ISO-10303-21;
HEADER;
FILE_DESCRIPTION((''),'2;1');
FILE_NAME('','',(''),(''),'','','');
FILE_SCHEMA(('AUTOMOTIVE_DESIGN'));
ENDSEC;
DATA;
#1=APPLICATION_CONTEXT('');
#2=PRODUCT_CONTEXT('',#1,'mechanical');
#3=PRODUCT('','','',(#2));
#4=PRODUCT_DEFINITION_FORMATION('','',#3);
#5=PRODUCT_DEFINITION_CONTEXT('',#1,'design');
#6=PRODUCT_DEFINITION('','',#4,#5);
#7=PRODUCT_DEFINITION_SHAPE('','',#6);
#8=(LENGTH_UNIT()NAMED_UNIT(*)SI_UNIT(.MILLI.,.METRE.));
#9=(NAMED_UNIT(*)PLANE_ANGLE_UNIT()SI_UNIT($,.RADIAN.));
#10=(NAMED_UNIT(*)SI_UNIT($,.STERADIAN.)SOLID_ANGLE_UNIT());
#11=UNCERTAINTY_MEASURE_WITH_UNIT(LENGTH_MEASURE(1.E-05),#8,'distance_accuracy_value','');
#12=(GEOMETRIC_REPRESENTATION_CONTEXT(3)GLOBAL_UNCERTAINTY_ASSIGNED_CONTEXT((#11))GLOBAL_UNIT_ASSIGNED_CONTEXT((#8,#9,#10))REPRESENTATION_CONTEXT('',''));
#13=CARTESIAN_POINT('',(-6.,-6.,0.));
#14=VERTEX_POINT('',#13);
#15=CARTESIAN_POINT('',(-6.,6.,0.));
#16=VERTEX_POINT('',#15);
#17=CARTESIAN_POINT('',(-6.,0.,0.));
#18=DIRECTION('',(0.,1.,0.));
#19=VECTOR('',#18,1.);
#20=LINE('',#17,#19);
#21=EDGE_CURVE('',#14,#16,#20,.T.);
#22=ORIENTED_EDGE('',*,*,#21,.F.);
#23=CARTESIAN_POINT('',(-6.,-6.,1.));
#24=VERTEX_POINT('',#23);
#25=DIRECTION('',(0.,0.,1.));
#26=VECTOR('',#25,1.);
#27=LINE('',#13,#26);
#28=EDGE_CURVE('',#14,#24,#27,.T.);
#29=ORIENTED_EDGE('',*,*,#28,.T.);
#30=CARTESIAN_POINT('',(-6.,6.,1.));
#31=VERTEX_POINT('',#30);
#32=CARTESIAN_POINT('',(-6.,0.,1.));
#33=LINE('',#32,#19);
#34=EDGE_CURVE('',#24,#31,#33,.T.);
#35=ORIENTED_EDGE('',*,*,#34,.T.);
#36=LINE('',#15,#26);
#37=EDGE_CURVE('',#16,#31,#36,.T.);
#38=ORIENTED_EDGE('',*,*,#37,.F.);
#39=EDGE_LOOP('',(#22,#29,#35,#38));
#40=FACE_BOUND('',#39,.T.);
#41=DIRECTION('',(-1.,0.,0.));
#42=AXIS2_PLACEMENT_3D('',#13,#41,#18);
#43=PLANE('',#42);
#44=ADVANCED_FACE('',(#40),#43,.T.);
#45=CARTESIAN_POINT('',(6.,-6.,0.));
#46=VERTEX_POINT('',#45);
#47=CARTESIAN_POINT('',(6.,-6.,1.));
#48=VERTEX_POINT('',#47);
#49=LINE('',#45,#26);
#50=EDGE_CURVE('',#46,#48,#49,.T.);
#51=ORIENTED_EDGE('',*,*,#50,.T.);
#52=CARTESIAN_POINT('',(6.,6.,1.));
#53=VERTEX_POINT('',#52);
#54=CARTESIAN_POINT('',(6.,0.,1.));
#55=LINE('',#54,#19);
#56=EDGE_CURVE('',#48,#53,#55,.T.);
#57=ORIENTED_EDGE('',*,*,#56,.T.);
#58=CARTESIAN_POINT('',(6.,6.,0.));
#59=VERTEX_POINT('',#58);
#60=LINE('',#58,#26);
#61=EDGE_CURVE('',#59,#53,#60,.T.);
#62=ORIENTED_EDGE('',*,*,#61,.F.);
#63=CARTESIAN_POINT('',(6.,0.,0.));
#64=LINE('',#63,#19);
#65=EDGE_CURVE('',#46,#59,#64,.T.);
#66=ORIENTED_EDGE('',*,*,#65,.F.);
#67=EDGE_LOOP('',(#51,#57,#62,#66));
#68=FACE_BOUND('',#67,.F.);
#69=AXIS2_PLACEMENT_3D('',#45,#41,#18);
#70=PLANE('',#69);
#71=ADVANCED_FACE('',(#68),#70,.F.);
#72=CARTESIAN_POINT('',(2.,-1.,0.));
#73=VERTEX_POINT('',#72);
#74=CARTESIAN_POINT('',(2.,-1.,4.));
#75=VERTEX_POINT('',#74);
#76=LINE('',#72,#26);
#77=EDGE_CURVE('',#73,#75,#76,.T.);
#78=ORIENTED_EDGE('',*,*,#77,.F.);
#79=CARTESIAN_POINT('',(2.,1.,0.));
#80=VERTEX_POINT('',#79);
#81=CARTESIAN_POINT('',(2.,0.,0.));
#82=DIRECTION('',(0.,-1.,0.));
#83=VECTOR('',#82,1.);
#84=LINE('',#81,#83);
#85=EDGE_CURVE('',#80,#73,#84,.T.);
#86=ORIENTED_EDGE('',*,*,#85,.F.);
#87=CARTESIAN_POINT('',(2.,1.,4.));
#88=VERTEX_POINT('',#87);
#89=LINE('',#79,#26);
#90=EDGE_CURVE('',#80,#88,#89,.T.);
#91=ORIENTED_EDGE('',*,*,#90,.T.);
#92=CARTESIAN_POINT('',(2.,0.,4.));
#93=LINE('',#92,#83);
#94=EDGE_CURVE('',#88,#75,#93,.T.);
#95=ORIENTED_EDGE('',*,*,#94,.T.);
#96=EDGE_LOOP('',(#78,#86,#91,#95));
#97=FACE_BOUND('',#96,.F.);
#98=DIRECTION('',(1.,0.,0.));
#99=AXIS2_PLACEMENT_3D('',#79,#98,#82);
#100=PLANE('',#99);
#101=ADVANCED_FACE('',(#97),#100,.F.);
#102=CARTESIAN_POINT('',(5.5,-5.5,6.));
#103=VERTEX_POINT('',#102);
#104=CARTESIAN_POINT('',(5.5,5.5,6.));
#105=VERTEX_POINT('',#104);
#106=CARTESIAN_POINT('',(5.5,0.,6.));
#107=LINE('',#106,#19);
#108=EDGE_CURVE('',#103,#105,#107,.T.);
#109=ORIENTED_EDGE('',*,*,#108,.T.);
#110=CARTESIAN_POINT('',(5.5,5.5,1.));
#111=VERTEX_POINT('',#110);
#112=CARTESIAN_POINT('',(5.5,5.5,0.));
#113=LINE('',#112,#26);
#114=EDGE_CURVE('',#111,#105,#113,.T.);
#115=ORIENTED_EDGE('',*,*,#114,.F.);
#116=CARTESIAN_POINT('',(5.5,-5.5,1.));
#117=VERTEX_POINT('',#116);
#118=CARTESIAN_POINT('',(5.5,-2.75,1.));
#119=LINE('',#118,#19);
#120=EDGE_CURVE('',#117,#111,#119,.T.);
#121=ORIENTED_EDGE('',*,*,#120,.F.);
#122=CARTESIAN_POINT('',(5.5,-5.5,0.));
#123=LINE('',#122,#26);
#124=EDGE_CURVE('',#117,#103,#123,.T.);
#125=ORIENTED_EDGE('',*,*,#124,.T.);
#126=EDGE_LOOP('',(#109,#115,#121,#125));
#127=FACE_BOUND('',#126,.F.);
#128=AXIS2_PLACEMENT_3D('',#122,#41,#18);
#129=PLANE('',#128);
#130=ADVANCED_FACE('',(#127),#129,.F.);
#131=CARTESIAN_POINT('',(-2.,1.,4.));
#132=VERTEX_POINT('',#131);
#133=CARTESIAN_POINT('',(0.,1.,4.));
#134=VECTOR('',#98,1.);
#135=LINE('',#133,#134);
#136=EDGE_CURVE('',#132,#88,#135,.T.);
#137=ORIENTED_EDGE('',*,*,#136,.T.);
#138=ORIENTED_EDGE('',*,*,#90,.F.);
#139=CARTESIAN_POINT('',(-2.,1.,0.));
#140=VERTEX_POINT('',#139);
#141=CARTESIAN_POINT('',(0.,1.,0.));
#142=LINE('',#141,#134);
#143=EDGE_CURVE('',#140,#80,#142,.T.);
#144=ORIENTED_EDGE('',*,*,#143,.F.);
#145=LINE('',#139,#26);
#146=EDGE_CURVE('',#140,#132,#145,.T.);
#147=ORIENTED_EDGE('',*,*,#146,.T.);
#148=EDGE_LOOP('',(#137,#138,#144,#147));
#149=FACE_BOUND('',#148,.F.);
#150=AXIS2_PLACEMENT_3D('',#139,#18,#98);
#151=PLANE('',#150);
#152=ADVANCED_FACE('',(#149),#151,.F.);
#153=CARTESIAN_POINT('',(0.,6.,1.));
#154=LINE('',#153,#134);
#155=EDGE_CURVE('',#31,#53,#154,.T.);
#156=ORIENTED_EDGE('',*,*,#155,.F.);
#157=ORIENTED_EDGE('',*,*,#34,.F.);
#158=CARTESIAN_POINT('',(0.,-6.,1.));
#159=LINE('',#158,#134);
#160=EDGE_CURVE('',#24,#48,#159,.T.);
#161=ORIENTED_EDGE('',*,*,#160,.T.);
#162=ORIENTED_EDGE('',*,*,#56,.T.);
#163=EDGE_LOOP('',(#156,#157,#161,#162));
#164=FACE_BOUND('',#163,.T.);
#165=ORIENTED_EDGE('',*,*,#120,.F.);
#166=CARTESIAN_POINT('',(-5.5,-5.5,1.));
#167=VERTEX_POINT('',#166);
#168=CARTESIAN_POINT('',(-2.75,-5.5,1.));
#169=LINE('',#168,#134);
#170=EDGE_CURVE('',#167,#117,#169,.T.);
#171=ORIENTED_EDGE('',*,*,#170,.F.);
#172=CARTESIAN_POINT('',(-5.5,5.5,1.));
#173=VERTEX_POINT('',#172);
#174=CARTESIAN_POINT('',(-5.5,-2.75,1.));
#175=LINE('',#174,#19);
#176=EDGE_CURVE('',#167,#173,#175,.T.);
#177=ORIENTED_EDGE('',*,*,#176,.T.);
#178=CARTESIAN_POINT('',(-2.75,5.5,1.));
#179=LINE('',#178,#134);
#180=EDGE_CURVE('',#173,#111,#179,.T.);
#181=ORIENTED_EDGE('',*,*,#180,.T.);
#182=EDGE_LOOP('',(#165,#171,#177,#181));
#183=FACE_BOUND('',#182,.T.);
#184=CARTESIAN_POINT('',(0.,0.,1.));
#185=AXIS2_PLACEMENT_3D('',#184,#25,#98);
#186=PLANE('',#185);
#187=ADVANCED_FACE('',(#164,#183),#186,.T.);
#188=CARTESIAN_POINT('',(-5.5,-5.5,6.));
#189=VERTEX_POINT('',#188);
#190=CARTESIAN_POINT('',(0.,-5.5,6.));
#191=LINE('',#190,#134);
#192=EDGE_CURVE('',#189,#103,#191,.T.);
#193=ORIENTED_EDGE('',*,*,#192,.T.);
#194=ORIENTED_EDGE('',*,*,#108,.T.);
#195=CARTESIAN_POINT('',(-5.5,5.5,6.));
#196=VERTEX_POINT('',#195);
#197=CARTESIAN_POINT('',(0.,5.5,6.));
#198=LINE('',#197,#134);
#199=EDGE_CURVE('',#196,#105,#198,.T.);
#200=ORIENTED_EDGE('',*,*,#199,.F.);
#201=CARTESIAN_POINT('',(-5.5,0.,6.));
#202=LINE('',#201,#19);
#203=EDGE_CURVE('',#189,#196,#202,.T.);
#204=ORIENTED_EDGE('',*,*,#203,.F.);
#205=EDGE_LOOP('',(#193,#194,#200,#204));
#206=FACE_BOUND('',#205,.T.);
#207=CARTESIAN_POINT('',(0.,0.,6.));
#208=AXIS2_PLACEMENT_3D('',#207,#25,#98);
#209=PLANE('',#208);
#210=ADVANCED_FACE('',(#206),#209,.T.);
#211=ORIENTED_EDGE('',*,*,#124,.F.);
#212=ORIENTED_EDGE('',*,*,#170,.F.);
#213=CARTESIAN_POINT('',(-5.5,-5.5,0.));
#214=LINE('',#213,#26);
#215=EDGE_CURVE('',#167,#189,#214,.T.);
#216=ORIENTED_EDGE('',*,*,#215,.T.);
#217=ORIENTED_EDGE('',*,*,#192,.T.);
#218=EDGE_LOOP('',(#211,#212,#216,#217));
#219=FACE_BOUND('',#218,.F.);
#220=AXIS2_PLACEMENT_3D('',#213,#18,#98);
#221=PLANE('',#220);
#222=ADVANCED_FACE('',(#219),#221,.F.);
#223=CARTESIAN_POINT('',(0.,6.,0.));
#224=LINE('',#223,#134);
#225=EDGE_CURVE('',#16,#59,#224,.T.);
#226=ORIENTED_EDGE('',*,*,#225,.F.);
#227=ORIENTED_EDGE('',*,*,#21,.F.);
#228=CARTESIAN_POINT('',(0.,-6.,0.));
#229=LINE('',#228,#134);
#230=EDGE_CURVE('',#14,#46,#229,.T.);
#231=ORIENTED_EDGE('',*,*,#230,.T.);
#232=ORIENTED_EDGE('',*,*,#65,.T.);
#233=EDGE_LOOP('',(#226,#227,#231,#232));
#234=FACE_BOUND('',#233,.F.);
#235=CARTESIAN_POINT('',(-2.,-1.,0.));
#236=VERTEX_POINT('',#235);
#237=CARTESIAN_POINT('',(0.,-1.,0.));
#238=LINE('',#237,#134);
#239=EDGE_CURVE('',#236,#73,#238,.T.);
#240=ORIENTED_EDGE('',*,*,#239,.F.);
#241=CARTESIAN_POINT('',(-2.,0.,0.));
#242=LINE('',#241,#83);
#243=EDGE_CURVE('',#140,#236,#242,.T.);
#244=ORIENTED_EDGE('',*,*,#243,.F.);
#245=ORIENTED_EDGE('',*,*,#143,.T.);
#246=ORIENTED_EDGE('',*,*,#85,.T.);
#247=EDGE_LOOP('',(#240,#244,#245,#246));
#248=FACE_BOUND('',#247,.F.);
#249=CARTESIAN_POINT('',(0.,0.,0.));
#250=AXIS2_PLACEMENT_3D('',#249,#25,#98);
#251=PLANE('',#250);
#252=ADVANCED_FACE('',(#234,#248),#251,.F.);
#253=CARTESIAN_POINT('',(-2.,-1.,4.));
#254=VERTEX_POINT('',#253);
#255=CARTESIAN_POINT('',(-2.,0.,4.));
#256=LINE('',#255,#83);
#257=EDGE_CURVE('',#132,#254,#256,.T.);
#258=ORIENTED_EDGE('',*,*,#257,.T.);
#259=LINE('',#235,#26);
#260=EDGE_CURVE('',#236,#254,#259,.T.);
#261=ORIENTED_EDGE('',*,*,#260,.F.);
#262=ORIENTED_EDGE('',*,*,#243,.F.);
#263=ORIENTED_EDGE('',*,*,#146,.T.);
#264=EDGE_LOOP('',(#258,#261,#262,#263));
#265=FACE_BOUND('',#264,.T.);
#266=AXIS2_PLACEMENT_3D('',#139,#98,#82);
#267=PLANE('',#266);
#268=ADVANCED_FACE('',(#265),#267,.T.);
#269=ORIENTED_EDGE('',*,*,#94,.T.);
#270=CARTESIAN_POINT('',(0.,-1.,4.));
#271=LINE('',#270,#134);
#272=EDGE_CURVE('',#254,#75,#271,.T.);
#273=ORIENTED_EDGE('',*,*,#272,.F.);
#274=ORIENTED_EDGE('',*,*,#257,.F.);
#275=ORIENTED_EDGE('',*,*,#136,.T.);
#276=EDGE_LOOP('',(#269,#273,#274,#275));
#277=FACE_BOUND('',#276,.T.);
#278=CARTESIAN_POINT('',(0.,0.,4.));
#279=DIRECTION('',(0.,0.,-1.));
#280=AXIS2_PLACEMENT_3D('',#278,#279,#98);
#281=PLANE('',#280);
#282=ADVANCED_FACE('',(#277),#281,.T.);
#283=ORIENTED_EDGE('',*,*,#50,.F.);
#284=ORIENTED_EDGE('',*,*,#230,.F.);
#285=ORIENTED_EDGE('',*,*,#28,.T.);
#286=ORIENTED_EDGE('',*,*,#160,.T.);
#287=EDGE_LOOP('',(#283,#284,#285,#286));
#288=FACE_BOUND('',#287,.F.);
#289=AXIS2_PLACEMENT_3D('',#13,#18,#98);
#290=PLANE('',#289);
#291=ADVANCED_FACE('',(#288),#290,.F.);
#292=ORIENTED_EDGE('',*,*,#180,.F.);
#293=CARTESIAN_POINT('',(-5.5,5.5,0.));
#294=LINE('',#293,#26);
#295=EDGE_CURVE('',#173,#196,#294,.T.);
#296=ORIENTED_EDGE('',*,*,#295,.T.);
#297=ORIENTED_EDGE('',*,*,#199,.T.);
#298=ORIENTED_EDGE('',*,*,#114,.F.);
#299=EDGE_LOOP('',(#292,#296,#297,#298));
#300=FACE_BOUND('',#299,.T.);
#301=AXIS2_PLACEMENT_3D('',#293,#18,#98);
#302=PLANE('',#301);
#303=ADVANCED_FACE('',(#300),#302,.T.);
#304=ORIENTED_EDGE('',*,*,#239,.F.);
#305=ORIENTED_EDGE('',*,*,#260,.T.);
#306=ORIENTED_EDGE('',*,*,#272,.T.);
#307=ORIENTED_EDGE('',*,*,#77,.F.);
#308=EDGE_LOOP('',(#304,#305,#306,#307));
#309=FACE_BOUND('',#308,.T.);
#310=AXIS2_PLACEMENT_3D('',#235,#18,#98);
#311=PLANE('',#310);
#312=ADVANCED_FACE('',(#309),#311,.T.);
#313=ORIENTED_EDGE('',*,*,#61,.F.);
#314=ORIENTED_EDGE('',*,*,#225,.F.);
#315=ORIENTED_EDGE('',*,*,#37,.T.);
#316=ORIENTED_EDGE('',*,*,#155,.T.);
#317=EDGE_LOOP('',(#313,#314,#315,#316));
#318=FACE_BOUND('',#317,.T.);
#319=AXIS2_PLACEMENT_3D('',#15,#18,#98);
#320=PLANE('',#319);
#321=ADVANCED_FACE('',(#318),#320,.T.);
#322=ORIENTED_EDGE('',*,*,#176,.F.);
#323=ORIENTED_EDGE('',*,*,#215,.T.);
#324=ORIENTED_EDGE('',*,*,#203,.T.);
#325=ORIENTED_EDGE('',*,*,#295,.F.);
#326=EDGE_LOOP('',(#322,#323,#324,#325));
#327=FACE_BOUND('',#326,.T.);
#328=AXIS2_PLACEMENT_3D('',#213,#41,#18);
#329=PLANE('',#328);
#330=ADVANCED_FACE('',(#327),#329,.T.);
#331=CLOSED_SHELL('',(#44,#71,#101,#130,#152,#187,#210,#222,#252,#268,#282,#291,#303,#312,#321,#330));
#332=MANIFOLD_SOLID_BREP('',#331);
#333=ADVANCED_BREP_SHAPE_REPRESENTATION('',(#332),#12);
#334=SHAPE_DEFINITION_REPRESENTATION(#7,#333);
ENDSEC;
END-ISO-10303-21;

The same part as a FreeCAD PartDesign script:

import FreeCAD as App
import Part
import Sketcher
from FreeCAD import Vector
Q = App.Units.Quantity

doc = App.newDocument("Part")
body = doc.addObject("PartDesign::Body", "Body")

# Sketch on XY plane
sketch1 = body.newObject("Sketcher::SketchObject", "Sketch")
sketch1.AttachmentSupport = (doc.getObject("XY_Plane"), [""])
sketch1.MapMode = "FlatFace"
sketch1.addGeometry(Part.LineSegment(Vector(-6, 6, 0), Vector(-6, -6, 0)), False)
sketch1.addGeometry(Part.LineSegment(Vector(-6, -6, 0), Vector(6, -6, 0)), False)
sketch1.addGeometry(Part.LineSegment(Vector(6, -6, 0), Vector(6, 6, 0)), False)
sketch1.addGeometry(Part.LineSegment(Vector(6, 6, 0), Vector(-6, 6, 0)), False)
sketch1.addConstraint(Sketcher.Constraint("Coincident", 0, 2, 1, 1))
sketch1.addConstraint(Sketcher.Constraint("Coincident", 1, 2, 2, 1))
sketch1.addConstraint(Sketcher.Constraint("Coincident", 2, 2, 3, 1))
sketch1.addConstraint(Sketcher.Constraint("Coincident", 3, 2, 0, 1))
sketch1.addConstraint(Sketcher.Constraint("Vertical", 0))
sketch1.addConstraint(Sketcher.Constraint("Horizontal", 1))
sketch1.addConstraint(Sketcher.Constraint("Vertical", 2))
sketch1.addConstraint(Sketcher.Constraint("Horizontal", 3))
sketch1.addConstraint(Sketcher.Constraint("Symmetric", 0, 2, 2, 2, -1, 1))
sketch1.addConstraint(Sketcher.Constraint("Equal", 3, 0))
sketch1.addConstraint(Sketcher.Constraint("DistanceX", 1, 1, 1, 2, Q("11 mm")))
pad1 = body.newObject("PartDesign::Pad", "Pad")
pad1.Profile = sketch1
pad1.Length = 6

# Sketch on XY plane
sketch2 = body.newObject("Sketcher::SketchObject", "Sketch001")
sketch2.AttachmentSupport = (doc.getObject("XY_Plane"), [""])
sketch2.MapMode = "FlatFace"
sketch2.addGeometry(Part.LineSegment(Vector(-6, 6, 0), Vector(-6, -6, 0)), False)
sketch2.addGeometry(Part.LineSegment(Vector(-6, -6, 0), Vector(6, -6, 0)), False)
sketch2.addGeometry(Part.LineSegment(Vector(6, -6, 0), Vector(6, 6, 0)), False)
sketch2.addGeometry(Part.LineSegment(Vector(6, 6, 0), Vector(-6, 6, 0)), False)
sketch2.addConstraint(Sketcher.Constraint("Coincident", 0, 2, 1, 1))
sketch2.addConstraint(Sketcher.Constraint("Coincident", 1, 2, 2, 1))
sketch2.addConstraint(Sketcher.Constraint("Coincident", 2, 2, 3, 1))
sketch2.addConstraint(Sketcher.Constraint("Coincident", 3, 2, 0, 1))
sketch2.addConstraint(Sketcher.Constraint("Vertical", 0))
sketch2.addConstraint(Sketcher.Constraint("Horizontal", 1))
sketch2.addConstraint(Sketcher.Constraint("Vertical", 2))
sketch2.addConstraint(Sketcher.Constraint("Horizontal", 3))
sketch2.addConstraint(Sketcher.Constraint("Symmetric", 0, 2, 2, 2, -1, 1))
sketch2.addConstraint(Sketcher.Constraint("Equal", 3, 0))
sketch2.addConstraint(Sketcher.Constraint("DistanceX", 1, 1, 1, 2, Q("12 mm")))
pad2 = body.newObject("PartDesign::Pad", "Pad001")
pad2.Profile = sketch2
pad2.Length = 1

# Sketch on XY plane
sketch3 = body.newObject("Sketcher::SketchObject", "Sketch002")
sketch3.AttachmentSupport = (doc.getObject("XY_Plane"), [""])
sketch3.MapMode = "FlatFace"
sketch3.addGeometry(Part.LineSegment(Vector(-2, -1, 0), Vector(-2, 1, 0)), False)
sketch3.addGeometry(Part.LineSegment(Vector(-2, 1, 0), Vector(2, 1, 0)), False)
sketch3.addGeometry(Part.LineSegment(Vector(2, 1, 0), Vector(2, -1, 0)), False)
sketch3.addGeometry(Part.LineSegment(Vector(2, -1, 0), Vector(-2, -1, 0)), False)
sketch3.addConstraint(Sketcher.Constraint("Coincident", 0, 2, 1, 1))
sketch3.addConstraint(Sketcher.Constraint("Coincident", 1, 2, 2, 1))
sketch3.addConstraint(Sketcher.Constraint("Coincident", 2, 2, 3, 1))
sketch3.addConstraint(Sketcher.Constraint("Coincident", 3, 2, 0, 1))
sketch3.addConstraint(Sketcher.Constraint("Vertical", 0))
sketch3.addConstraint(Sketcher.Constraint("Horizontal", 1))
sketch3.addConstraint(Sketcher.Constraint("Vertical", 2))
sketch3.addConstraint(Sketcher.Constraint("Horizontal", 3))
sketch3.addConstraint(Sketcher.Constraint("Symmetric", 0, 2, 2, 2, -1, 1))
sketch3.addConstraint(Sketcher.Constraint("DistanceX", 1, 1, 1, 2, Q("4 mm")))
sketch3.addConstraint(Sketcher.Constraint("DistanceY", 0, 1, 0, 2, Q("2 mm")))
pocket1 = body.newObject("PartDesign::Pocket", "Pocket")
pocket1.Profile = sketch3
pocket1.Length = 4
pocket1.Reversed = True

doc.recompute()
